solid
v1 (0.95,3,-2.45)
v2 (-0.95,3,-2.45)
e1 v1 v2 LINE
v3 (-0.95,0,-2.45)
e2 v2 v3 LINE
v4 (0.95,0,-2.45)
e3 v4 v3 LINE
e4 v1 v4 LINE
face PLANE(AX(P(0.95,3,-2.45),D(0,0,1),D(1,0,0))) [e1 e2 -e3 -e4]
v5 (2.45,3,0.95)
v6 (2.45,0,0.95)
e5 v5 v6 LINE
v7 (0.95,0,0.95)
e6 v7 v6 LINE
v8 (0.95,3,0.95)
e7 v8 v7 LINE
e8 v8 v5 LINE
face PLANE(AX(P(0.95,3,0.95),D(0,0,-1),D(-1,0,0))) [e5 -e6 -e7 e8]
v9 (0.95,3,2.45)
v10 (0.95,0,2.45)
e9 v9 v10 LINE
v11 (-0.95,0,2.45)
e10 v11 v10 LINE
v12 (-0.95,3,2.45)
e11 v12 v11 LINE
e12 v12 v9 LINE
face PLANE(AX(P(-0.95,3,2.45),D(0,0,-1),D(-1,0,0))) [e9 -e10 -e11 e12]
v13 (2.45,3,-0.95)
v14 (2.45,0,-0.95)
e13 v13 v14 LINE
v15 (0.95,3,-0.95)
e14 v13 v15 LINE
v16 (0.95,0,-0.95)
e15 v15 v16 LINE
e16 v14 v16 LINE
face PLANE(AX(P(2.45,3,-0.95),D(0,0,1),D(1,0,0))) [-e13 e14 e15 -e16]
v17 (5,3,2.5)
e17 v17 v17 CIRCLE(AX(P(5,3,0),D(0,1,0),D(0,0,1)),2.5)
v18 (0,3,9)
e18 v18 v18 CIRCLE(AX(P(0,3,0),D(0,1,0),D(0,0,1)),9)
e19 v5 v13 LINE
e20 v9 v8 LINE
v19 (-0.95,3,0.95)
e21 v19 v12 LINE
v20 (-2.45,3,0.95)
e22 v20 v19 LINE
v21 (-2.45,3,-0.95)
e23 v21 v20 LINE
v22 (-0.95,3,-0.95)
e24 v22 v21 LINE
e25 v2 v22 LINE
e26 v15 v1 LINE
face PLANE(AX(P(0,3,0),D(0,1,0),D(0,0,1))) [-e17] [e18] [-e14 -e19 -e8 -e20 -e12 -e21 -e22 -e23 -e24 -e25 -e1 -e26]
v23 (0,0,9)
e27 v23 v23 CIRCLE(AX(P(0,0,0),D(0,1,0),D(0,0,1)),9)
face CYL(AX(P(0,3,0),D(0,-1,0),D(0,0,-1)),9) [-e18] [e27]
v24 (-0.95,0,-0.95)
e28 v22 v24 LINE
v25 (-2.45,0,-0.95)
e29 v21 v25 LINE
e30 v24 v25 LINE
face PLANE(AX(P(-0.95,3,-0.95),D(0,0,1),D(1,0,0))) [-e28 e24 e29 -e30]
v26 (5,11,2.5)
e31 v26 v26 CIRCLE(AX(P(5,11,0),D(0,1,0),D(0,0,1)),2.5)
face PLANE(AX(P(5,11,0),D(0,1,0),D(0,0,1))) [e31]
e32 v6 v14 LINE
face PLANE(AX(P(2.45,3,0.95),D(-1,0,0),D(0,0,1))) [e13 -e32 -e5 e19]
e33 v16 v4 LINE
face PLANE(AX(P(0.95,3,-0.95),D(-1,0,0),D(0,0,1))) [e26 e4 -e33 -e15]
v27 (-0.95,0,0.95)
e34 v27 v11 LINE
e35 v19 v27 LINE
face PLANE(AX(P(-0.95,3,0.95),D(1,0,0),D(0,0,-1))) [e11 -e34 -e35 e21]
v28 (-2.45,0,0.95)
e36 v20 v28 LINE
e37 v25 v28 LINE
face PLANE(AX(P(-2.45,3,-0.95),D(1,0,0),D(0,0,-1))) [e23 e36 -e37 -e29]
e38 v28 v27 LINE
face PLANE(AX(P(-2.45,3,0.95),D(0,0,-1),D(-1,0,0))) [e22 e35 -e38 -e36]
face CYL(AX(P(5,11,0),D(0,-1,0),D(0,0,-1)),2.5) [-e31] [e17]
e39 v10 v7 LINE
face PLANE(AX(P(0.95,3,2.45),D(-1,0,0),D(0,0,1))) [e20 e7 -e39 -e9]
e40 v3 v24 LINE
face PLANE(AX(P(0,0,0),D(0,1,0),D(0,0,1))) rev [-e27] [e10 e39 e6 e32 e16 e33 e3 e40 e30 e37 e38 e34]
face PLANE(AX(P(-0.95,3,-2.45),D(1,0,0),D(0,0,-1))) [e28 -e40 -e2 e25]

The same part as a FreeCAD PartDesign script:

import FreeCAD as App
import Part
import Sketcher
from FreeCAD import Vector

doc = App.newDocument("Part")
body = doc.addObject("PartDesign::Body", "Body")

sketch1 = body.newObject("Sketcher::SketchObject", "Sketch")
sketch1.AttachmentSupport = (doc.getObject("XZ_Plane"), [""])
sketch1.MapMode = "FlatFace"
sketch1.addGeometry([
    Part.Circle(Vector(0, 0, 0), Vector(0, 0, 1), 9),
    Part.LineSegment(Vector(-2.45, 0.95, 0), Vector(-2.45, -0.95, 0)),
    Part.LineSegment(Vector(-2.45, -0.95, 0), Vector(-0.95, -0.95, 0)),
    Part.LineSegment(Vector(-0.95, -0.95, 0), Vector(-0.95, -2.45, 0)),
    Part.LineSegment(Vector(-0.95, -2.45, 0), Vector(0.95, -2.45, 0)),
    Part.LineSegment(Vector(0.95, -2.45, 0), Vector(0.95, -0.95, 0)),
    Part.LineSegment(Vector(0.95, -0.95, 0), Vector(2.45, -0.95, 0)),
    Part.LineSegment(Vector(2.45, -0.95, 0), Vector(2.45, 0.95, 0)),
    Part.LineSegment(Vector(2.45, 0.95, 0), Vector(0.95, 0.95, 0)),
    Part.LineSegment(Vector(0.95, 0.95, 0), Vector(0.95, 2.45, 0)),
    Part.LineSegment(Vector(0.95, 2.45, 0), Vector(-0.95, 2.45, 0)),
    Part.LineSegment(Vector(-0.95, 2.45, 0), Vector(-0.95, 0.95, 0)),
    Part.LineSegment(Vector(-0.95, 0.95, 0), Vector(-2.45, 0.95, 0)),
], False)
sketch1.addConstraint([
    Sketcher.Constraint("Coincident", 1, 2, 2, 1),
    Sketcher.Constraint("Coincident", 2, 2, 3, 1),
    Sketcher.Constraint("Coincident", 3, 2, 4, 1),
    Sketcher.Constraint("Coincident", 4, 2, 5, 1),
    Sketcher.Constraint("Coincident", 5, 2, 6, 1),
    Sketcher.Constraint("Coincident", 6, 2, 7, 1),
    Sketcher.Constraint("Coincident", 7, 2, 8, 1),
    Sketcher.Constraint("Coincident", 8, 2, 9, 1),
    Sketcher.Constraint("Coincident", 9, 2, 10, 1),
    Sketcher.Constraint("Coincident", 10, 2, 11, 1),
    Sketcher.Constraint("Coincident", 11, 2, 12, 1),
    Sketcher.Constraint("Coincident", 12, 2, 1, 1),
    Sketcher.Constraint("Vertical", 1),
    Sketcher.Constraint("Horizontal", 2),
    Sketcher.Constraint("Vertical", 3),
    Sketcher.Constraint("Horizontal", 4),
    Sketcher.Constraint("Vertical", 5),
    Sketcher.Constraint("Horizontal", 6),
    Sketcher.Constraint("Vertical", 7),
    Sketcher.Constraint("Horizontal", 8),
    Sketcher.Constraint("Vertical", 9),
    Sketcher.Constraint("Horizontal", 10),
    Sketcher.Constraint("Vertical", 11),
    Sketcher.Constraint("Horizontal", 12),
    Sketcher.Constraint("Coincident", 0, 3, -1, 1),
    Sketcher.Constraint("Symmetric", 1, 2, 7, 2, -1, 1),
    Sketcher.Constraint("Symmetric", 3, 2, 9, 2, -1, 1),
    Sketcher.Constraint("Symmetric", 5, 2, 11, 2, -1, 1),
    Sketcher.Constraint("Symmetric", 2, 2, 5, 2, -2),
    Sketcher.Constraint("Equal", 10, 1),
    Sketcher.Constraint("Equal", 12, 3),
    Sketcher.Constraint("Diameter", 0, 18.0),
    Sketcher.Constraint("DistanceX", 2, 1, 2, 2, 1.5),
    Sketcher.Constraint("DistanceX", 4, 1, 4, 2, 1.9),
])
pad1 = body.newObject("PartDesign::Pad", "Pad")
pad1.Profile = sketch1
pad1.Length = 3
pad1.Reversed = True

sketch2 = body.newObject("Sketcher::SketchObject", "Sketch001")
sketch2.AttachmentSupport = (doc.getObject("XZ_Plane"), [""])
sketch2.MapMode = "FlatFace"
sketch2.AttachmentOffset = App.Placement(Vector(0, 0, -3), App.Rotation())
sketch2.addGeometry(Part.Circle(Vector(5, 0, 0), Vector(0, 0, 1), 2.5), False)
sketch2.addConstraint([
    Sketcher.Constraint("PointOnObject", 0, 3, -1),
    Sketcher.Constraint("Diameter", 0, 5.0),
    Sketcher.Constraint("DistanceX", -1, 1, 0, 3, 5.0),
])
pad2 = body.newObject("PartDesign::Pad", "Pad001")
pad2.Profile = sketch2
pad2.Length = 8
pad2.Reversed = True

doc.recompute()
